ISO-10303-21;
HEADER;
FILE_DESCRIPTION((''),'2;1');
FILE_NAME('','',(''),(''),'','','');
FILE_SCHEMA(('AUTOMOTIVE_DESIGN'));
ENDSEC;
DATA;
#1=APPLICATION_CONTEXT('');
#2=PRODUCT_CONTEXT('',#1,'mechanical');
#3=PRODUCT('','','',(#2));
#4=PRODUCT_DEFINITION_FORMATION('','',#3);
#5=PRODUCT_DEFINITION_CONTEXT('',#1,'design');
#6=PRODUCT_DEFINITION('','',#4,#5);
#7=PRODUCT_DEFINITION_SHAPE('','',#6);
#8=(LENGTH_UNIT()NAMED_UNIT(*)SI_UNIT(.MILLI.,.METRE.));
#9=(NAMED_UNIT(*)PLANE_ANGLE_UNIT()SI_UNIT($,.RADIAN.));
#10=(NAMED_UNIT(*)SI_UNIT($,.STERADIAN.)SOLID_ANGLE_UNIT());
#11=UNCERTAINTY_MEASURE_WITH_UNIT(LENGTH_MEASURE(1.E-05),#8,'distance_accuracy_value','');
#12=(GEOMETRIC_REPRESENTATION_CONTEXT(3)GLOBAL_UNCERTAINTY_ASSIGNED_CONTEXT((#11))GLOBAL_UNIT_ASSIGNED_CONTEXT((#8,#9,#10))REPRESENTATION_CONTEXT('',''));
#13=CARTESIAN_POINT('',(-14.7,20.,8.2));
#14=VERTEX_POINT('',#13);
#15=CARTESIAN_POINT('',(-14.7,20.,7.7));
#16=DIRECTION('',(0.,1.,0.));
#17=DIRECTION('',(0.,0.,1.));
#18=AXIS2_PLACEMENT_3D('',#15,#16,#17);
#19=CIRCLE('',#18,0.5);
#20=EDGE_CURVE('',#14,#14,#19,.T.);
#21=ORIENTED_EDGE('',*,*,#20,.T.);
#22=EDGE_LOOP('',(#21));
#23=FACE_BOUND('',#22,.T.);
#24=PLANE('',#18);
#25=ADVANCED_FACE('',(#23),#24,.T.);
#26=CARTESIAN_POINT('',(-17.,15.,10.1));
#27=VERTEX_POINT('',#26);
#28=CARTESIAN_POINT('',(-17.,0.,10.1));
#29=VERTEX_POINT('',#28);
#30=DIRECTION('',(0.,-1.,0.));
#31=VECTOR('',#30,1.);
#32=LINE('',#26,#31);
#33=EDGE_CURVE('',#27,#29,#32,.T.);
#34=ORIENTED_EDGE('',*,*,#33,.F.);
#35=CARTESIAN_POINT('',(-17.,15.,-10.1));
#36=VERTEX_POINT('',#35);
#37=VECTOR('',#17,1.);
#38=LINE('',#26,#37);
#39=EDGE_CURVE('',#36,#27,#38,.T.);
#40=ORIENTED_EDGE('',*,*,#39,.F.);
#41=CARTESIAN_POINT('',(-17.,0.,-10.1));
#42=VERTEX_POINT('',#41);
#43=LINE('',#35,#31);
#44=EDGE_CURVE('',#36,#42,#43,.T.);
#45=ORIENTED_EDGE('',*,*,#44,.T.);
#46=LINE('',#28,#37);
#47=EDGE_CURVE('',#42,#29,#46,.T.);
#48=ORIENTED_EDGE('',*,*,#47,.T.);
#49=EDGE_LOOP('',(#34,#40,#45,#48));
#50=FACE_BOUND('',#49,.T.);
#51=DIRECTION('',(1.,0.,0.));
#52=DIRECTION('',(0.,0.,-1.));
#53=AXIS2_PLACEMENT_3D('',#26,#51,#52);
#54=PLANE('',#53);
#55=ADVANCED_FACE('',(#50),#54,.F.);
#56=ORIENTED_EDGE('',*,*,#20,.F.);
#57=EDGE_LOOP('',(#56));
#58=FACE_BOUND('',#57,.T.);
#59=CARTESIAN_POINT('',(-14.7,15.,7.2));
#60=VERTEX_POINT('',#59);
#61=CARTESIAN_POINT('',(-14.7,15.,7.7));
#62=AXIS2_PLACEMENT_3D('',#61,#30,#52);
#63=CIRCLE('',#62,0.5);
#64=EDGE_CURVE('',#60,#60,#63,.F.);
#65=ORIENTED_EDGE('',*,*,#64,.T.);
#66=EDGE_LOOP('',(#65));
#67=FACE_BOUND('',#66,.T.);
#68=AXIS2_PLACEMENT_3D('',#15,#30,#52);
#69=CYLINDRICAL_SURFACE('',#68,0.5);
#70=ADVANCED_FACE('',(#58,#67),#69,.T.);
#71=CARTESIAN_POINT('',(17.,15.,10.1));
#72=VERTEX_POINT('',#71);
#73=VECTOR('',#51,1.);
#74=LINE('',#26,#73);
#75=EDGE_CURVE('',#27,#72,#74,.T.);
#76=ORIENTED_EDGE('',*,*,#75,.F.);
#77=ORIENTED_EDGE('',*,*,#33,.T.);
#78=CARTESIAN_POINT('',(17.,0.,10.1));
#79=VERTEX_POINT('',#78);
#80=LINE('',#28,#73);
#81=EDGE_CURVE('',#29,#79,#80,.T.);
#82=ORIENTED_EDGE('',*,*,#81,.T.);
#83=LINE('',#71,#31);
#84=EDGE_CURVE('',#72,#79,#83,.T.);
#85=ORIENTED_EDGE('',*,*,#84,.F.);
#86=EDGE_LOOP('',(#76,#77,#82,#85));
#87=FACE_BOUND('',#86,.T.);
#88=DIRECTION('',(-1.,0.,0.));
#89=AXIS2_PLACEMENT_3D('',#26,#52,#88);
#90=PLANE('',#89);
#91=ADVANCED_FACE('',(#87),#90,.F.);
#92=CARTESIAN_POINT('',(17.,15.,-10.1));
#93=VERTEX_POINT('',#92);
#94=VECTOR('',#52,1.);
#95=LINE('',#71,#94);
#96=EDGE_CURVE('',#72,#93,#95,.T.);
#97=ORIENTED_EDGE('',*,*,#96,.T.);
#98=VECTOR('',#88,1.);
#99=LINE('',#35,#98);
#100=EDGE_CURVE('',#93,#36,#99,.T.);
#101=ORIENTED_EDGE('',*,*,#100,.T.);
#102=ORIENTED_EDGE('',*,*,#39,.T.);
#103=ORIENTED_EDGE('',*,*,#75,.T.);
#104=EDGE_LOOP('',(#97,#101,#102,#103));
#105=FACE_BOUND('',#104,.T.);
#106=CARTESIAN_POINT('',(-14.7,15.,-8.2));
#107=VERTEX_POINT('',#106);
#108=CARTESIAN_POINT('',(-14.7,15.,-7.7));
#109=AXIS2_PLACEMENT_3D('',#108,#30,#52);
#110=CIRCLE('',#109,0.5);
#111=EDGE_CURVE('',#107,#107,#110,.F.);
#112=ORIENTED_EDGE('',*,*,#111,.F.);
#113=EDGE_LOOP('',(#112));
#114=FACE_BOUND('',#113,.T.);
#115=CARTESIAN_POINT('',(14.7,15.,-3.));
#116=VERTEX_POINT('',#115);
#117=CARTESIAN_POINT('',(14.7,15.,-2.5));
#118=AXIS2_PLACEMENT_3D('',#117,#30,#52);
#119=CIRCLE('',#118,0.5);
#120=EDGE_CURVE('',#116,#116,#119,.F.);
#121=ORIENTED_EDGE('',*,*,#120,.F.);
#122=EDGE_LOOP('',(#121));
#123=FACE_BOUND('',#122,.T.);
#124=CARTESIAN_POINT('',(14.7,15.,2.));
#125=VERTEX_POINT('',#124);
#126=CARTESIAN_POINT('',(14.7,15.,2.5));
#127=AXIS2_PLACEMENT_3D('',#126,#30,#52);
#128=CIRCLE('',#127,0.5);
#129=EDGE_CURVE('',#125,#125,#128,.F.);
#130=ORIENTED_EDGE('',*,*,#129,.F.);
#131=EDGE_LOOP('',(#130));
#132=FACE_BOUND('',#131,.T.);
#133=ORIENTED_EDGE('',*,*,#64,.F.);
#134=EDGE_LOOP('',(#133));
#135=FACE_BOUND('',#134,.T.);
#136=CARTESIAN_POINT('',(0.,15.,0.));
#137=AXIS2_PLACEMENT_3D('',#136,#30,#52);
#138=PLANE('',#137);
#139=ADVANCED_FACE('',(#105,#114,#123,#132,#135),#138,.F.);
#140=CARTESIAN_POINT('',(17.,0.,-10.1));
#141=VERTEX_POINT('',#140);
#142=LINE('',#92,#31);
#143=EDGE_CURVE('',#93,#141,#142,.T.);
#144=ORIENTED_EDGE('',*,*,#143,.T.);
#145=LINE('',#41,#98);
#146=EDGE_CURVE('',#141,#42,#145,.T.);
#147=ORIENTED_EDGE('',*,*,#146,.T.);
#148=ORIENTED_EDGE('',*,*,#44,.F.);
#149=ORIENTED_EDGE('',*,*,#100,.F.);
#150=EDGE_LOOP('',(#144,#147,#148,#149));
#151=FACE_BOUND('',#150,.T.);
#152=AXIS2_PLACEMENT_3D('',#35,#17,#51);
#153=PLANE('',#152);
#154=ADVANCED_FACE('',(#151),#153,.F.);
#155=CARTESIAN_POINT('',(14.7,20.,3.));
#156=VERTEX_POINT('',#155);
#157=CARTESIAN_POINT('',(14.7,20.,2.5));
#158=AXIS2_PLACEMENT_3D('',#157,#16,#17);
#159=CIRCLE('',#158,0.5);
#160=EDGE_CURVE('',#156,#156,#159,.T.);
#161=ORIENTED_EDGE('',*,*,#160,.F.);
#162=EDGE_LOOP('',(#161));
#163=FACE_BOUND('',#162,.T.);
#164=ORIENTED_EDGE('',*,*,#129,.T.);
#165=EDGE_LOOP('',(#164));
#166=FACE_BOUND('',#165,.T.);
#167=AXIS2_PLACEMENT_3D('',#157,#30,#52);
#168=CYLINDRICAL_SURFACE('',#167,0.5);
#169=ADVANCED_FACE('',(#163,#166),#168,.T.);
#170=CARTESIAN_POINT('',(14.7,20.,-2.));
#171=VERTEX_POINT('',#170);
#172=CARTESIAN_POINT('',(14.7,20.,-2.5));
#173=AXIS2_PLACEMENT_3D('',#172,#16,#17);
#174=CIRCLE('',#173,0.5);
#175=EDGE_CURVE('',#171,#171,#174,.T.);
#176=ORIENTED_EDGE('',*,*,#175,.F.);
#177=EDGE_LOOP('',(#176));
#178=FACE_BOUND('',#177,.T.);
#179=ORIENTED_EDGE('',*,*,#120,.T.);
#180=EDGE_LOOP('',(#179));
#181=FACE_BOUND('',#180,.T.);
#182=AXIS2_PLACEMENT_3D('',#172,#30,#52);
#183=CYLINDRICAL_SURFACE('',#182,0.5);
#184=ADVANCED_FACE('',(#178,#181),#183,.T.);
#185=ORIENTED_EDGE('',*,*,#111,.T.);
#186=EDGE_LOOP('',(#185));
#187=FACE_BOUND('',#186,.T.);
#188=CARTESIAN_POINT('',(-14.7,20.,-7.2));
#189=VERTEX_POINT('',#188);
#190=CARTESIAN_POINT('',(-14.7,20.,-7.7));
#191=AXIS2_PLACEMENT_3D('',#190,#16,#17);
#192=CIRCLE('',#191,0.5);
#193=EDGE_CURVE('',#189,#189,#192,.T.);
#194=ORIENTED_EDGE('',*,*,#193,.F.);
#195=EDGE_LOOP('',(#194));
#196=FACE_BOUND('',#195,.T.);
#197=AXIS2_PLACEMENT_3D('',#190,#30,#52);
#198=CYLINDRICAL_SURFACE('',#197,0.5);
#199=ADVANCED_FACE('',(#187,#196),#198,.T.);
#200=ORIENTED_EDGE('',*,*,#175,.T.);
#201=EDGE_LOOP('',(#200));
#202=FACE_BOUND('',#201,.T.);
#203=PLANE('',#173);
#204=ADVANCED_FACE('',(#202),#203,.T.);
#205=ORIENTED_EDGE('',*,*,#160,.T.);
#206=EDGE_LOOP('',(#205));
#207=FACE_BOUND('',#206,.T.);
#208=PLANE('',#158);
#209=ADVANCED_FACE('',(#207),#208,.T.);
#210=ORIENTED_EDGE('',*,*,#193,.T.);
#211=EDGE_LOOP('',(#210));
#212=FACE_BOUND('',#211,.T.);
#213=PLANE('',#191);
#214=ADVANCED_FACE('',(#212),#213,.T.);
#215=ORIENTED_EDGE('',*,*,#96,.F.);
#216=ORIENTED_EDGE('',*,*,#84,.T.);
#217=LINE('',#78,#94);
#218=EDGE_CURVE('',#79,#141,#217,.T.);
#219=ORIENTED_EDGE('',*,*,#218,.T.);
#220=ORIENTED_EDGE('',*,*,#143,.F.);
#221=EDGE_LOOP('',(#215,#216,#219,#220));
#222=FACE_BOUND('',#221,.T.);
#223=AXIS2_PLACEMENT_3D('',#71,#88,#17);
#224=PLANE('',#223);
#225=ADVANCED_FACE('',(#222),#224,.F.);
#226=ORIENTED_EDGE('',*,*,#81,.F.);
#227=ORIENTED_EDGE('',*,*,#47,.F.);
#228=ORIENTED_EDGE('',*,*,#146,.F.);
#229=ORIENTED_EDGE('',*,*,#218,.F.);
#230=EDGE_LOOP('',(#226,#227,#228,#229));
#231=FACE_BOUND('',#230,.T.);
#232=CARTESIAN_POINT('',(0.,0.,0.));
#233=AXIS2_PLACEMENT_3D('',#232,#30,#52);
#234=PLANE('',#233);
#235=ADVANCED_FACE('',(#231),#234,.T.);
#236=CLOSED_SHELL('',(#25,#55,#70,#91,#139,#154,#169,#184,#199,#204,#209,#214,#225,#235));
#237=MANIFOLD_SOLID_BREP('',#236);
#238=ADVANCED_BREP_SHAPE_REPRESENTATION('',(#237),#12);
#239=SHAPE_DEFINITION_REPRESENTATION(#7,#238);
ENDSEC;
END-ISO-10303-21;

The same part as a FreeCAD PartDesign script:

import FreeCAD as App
import Part
import Sketcher

V = App.Vector
Q = App.Units.Quantity


def add_polygon(sketch, points):
    """Adds a closed chain of lines whose ends are joined by coincident constraints."""
    first, n = sketch.GeometryCount, len(points)
    for a, b in zip(points, points[1:] + points[:1]):
        sketch.addGeometry(Part.LineSegment(App.Vector(*a, 0), App.Vector(*b, 0)), False)
    for i in range(n):
        sketch.addConstraint(Sketcher.Constraint("Coincident", first + i, 2, first + (i + 1) % n, 1))

doc = App.newDocument("Part")
params = doc.addObject("Spreadsheet::Sheet", "Params")
for row, (alias, value) in enumerate([
    ("sketch1_width", "34 mm"),
    ("sketch1_height", "20.2 mm"),
    ("pad1_length", "15 mm"),
    ("sketch2_diameter", "1 mm"),
    ("pad2_length", "5 mm"),
], start=1):
    params.set(f"A{row}", alias)
    params.set(f"B{row}", "=" + value)
    params.setAlias(f"B{row}", alias)

body = doc.addObject("PartDesign::Body", "Body")

# Sketch on XZ plane
sketch1 = body.newObject("Sketcher::SketchObject", "Sketch")
sketch1.AttachmentSupport = (doc.getObject("XZ_Plane"), [""])
sketch1.MapMode = "FlatFace"
add_polygon(sketch1, [(-17, -10), (-17, 10), (17, 10), (17, -10)])  # lines 0-3
sketch1.addConstraint([
    Sketcher.Constraint("Vertical", 0),
    Sketcher.Constraint("Horizontal", 1),
    Sketcher.Constraint("Vertical", 2),
    Sketcher.Constraint("Horizontal", 3),
    Sketcher.Constraint("Symmetric", 0, 2, 2, 2, -1, 1),
    Sketcher.Constraint("DistanceX", 1, 1, 1, 2, Q("34 mm")),
    Sketcher.Constraint("DistanceY", 0, 1, 0, 2, Q("20.2 mm")),
])
sketch1.setExpression("Constraints[9]", "Params.sketch1_width")
sketch1.setExpression("Constraints[10]", "Params.sketch1_height")
pad1 = body.newObject("PartDesign::Pad", "Pad")
pad1.Profile = sketch1
pad1.setExpression("Length", "Params.pad1_length")
pad1.Reversed = True

# Sketch on XZ plane
sketch2 = body.newObject("Sketcher::SketchObject", "Sketch001")
sketch2.AttachmentSupport = (doc.getObject("XZ_Plane"), [""])
sketch2.MapMode = "FlatFace"
sketch2.AttachmentOffset = App.Placement(V(0, 0, -15), App.Rotation())
sketch2.addGeometry([
    Part.Circle(V(-14.7, -7.7, 0), V(0, 0, 1), 0.5),
    Part.Circle(V(-14.7, 7.7, 0), V(0, 0, 1), 0.5),
    Part.Circle(V(14.7, 2.5, 0), V(0, 0, 1), 0.5),
    Part.Circle(V(14.7, -2.5, 0), V(0, 0, 1), 0.5),
], False)
sketch2.addConstraint([
    Sketcher.Constraint("Equal", 0, 1),
    Sketcher.Constraint("Equal", 1, 2),
    Sketcher.Constraint("Equal", 2, 3),
    Sketcher.Constraint("Symmetric", 0, 3, 1, 3, -1),
    Sketcher.Constraint("Symmetric", 2, 3, 3, 3, -1),
    Sketcher.Constraint("Diameter", 0, Q("1 mm")),
    Sketcher.Constraint("DistanceY", 3, 3, 2, 3, Q("5 mm")),
    Sketcher.Constraint("DistanceX", 0, 3, -1, 1, Q("14.7 mm")),
    Sketcher.Constraint("DistanceY", 0, 3, -1, 1, Q("7.7 mm")),
    Sketcher.Constraint("DistanceX", -1, 1, 2, 3, Q("14.7 mm")),
])
sketch2.setExpression("Constraints[5]", "Params.sketch2_diameter")
pad2 = body.newObject("PartDesign::Pad", "Pad001")
pad2.Profile = sketch2
pad2.setExpression("Length", "Params.pad2_length")
pad2.Reversed = True

doc.recompute()
